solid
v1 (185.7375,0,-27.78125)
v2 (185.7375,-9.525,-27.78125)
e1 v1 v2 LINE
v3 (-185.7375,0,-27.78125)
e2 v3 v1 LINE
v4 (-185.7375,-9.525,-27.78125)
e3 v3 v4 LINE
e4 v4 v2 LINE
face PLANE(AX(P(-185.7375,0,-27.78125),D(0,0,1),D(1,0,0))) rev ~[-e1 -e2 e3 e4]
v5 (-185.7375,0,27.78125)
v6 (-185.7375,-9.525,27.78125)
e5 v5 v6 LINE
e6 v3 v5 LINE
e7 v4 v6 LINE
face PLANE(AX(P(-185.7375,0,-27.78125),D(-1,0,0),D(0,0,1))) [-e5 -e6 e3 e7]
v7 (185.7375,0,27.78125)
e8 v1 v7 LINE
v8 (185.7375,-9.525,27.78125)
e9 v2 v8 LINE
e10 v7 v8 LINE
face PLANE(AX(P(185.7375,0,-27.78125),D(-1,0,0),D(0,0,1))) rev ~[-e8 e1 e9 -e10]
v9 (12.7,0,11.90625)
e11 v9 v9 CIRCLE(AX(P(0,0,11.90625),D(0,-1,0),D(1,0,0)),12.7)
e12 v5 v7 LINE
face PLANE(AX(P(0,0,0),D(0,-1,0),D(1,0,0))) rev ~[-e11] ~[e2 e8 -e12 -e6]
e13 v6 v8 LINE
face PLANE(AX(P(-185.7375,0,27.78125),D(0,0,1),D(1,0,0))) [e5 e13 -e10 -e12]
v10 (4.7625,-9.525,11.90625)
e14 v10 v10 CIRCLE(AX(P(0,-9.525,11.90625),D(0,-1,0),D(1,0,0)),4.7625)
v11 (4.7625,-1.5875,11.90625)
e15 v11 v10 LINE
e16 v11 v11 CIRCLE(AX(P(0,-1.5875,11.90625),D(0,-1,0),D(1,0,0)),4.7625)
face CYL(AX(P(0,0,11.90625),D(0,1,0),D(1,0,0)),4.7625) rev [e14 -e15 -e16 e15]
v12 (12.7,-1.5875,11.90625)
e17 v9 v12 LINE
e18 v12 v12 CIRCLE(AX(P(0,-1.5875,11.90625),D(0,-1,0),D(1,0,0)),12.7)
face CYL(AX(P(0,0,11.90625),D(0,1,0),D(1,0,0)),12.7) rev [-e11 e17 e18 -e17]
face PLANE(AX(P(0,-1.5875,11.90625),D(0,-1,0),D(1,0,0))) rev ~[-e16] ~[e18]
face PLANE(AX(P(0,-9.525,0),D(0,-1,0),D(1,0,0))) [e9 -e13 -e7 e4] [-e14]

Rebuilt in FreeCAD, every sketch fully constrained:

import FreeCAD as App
import Part
import Sketcher
from FreeCAD import Vector
Q = App.Units.Quantity

doc = App.newDocument("Part")
body = doc.addObject("PartDesign::Body", "Body")

# Sketch on XZ plane
sketch1 = doc.addObject("Sketcher::SketchObject", "Sketch")
body.addObject(sketch1)
sketch1.AttachmentSupport = (doc.XZ_Plane, [""])
sketch1.MapMode = "FlatFace"
sketch1.addGeometry(Part.LineSegment(Vector(-185.7375, 27.78125, 0), Vector(-185.7375, -27.78125, 0)), False)
sketch1.addGeometry(Part.LineSegment(Vector(-185.7375, -27.78125, 0), Vector(185.7375, -27.78125, 0)), False)
sketch1.addGeometry(Part.LineSegment(Vector(185.7375, -27.78125, 0), Vector(185.7375, 27.78125, 0)), False)
sketch1.addGeometry(Part.LineSegment(Vector(185.7375, 27.78125, 0), Vector(-185.7375, 27.78125, 0)), False)
sketch1.addGeometry(Part.Circle(Vector(0, 11.90625, 0), Vector(0, 0, 1), 4.7625), False)
sketch1.addConstraint(Sketcher.Constraint("Coincident", 0, 2, 1, 1))
sketch1.addConstraint(Sketcher.Constraint("Coincident", 1, 2, 2, 1))
sketch1.addConstraint(Sketcher.Constraint("Coincident", 2, 2, 3, 1))
sketch1.addConstraint(Sketcher.Constraint("Coincident", 3, 2, 0, 1))
sketch1.addConstraint(Sketcher.Constraint("Vertical", 0))
sketch1.addConstraint(Sketcher.Constraint("Horizontal", 1))
sketch1.addConstraint(Sketcher.Constraint("Vertical", 2))
sketch1.addConstraint(Sketcher.Constraint("Horizontal", 3))
sketch1.addConstraint(Sketcher.Constraint("Symmetric", 0, 2, 2, 2, -1, 1))
sketch1.addConstraint(Sketcher.Constraint("PointOnObject", 4, 3, -2))
sketch1.addConstraint(Sketcher.Constraint("Diameter", 4, Q("0.375 in")))
sketch1.addConstraint(Sketcher.Constraint("DistanceX", 1, 1, 1, 2, Q("14.625 in")))
sketch1.addConstraint(Sketcher.Constraint("DistanceY", 0, 2, 0, 1, Q("2.1875 in")))
sketch1.addConstraint(Sketcher.Constraint("DistanceY", -1, 1, 4, 3, Q("0.46875 in")))
pad1 = doc.addObject("PartDesign::Pad", "Pad")
body.addObject(pad1)
pad1.Profile = sketch1
pad1.Length = Q("0.375 in")

# Sketch on XZ plane
sketch2 = doc.addObject("Sketcher::SketchObject", "Sketch001")
body.addObject(sketch2)
sketch2.AttachmentSupport = (doc.XZ_Plane, [""])
sketch2.MapMode = "FlatFace"
sketch2.addGeometry(Part.Circle(Vector(0, 11.90625, 0), Vector(0, 0, 1), 12.7), False)
sketch2.addGeometry(Part.Circle(Vector(0, 11.90625, 0), Vector(0, 0, 1), 4.7625), False)
sketch2.addConstraint(Sketcher.Constraint("Coincident", 1, 3, 0, 3))
sketch2.addConstraint(Sketcher.Constraint("PointOnObject", 0, 3, -2))
sketch2.addConstraint(Sketcher.Constraint("Diameter", 0, Q("1 in")))
sketch2.addConstraint(Sketcher.Constraint("Diameter", 1, Q("0.375 in")))
sketch2.addConstraint(Sketcher.Constraint("DistanceY", -1, 1, 0, 3, Q("0.46875 in")))
pocket1 = doc.addObject("PartDesign::Pocket", "Pocket")
body.addObject(pocket1)
pocket1.Profile = sketch2
pocket1.Length = Q("0.0625 in")
pocket1.Reversed = True

doc.recompute()
